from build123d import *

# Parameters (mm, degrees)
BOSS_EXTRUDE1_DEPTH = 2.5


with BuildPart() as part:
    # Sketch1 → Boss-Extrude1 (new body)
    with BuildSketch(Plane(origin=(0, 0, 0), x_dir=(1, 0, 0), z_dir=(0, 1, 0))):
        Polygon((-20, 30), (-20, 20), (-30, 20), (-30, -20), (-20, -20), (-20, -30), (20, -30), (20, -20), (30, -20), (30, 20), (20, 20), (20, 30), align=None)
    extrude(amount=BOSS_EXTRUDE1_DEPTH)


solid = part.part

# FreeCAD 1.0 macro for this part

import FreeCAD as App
import Part
import Sketcher
Q = App.Units.Quantity


def add_polygon(sketch, points):
    """Adds a closed chain of lines whose ends are joined by coincident constraints."""
    first, n = sketch.GeometryCount, len(points)
    for a, b in zip(points, points[1:] + points[:1]):
        sketch.addGeometry(Part.LineSegment(App.Vector(*a, 0), App.Vector(*b, 0)), False)
    for i in range(n):
        sketch.addConstraint(Sketcher.Constraint("Coincident", first + i, 2, first + (i + 1) % n, 1))

doc = App.newDocument("Part")
params = doc.addObject("Spreadsheet::Sheet", "Params")
for row, (alias, value) in enumerate([
    ("sketch1_width", "10 mm"),
    ("sketch1_width2", "40 mm"),
    ("pad1_length", "2.5 mm"),
], start=1):
    params.set(f"A{row}", alias)
    params.set(f"B{row}", "=" + value)
    params.setAlias(f"B{row}", alias)

body = doc.addObject("PartDesign::Body", "Body")

sketch1 = body.newObject("Sketcher::SketchObject", "Sketch")
sketch1.AttachmentSupport = (doc.getObject("XZ_Plane"), [""])
sketch1.MapMode = "FlatFace"
add_polygon(sketch1, [(-20, -30), (-20, -20), (-30, -20), (-30, 20), (-20, 20), (-20, 30), (20, 30), (20, 20), (30, 20), (30, -20), (20, -20), (20, -30)])
sketch1.addConstraint([
    Sketcher.Constraint("Vertical", 0),
    Sketcher.Constraint("Horizontal", 1),
    Sketcher.Constraint("Vertical", 2),
    Sketcher.Constraint("Horizontal", 3),
    Sketcher.Constraint("Vertical", 4),
    Sketcher.Constraint("Horizontal", 5),
    Sketcher.Constraint("Vertical", 6),
    Sketcher.Constraint("Horizontal", 7),
    Sketcher.Constraint("Vertical", 8),
    Sketcher.Constraint("Horizontal", 9),
    Sketcher.Constraint("Vertical", 10),
    Sketcher.Constraint("Horizontal", 11),
    Sketcher.Constraint("Symmetric", 0, 2, 6, 2, -1, 1),
    Sketcher.Constraint("Symmetric", 2, 2, 8, 2, -1, 1),
    Sketcher.Constraint("Symmetric", 4, 2, 10, 2, -1, 1),
    Sketcher.Constraint("Symmetric", 3, 2, 6, 2, -2),
    Sketcher.Constraint("Equal", 9, 0),
    Sketcher.Constraint("Equal", 11, 2),
    Sketcher.Constraint("DistanceX", 1, 2, 1, 1, Q("10 mm")),
    Sketcher.Constraint("DistanceX", 5, 1, 5, 2, Q("40 mm")),
])
sketch1.setExpression("Constraints[30]", "Params.sketch1_width")
sketch1.setExpression("Constraints[31]", "Params.sketch1_width2")
pad1 = body.newObject("PartDesign::Pad", "Pad")
pad1.Profile = sketch1
pad1.setExpression("Length", "Params.pad1_length")
pad1.Reversed = True

doc.recompute()
